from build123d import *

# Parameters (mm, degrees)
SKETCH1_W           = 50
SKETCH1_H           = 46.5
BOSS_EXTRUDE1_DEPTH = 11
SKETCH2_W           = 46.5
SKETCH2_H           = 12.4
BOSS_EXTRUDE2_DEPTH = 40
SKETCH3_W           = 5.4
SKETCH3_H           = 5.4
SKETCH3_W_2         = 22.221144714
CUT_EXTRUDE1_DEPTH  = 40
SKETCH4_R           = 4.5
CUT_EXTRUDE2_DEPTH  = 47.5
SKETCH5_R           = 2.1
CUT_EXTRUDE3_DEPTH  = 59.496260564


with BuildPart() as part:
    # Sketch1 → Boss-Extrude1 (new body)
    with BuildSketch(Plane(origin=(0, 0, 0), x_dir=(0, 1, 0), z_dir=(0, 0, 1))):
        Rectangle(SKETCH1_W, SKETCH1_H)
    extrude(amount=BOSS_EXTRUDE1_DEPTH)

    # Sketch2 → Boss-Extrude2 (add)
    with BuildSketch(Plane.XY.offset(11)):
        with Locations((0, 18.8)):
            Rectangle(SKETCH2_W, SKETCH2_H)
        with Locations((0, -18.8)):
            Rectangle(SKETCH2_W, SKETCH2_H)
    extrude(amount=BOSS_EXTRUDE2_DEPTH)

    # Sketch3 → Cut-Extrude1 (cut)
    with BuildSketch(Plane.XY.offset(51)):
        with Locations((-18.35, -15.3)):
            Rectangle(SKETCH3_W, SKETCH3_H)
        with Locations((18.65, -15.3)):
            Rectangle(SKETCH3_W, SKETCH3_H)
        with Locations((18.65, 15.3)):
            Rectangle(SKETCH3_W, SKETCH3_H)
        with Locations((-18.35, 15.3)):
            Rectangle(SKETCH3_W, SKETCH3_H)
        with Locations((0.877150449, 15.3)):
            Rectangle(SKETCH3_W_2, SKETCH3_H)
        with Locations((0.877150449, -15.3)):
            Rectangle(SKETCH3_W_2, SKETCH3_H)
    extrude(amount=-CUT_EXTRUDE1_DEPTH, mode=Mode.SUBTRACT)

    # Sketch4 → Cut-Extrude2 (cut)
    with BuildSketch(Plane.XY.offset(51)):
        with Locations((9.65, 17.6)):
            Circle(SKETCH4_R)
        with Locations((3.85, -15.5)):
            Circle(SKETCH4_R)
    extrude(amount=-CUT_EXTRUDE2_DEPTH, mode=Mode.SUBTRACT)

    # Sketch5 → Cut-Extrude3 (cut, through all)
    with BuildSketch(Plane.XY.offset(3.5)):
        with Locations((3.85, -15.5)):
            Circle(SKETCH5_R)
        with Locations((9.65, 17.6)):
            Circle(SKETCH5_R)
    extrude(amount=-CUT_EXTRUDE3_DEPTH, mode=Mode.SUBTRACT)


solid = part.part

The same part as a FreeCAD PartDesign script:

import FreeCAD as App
import Part
import Sketcher
from FreeCAD import Vector


def add_polygon(sketch, points):
    """Adds a closed chain of lines whose ends are joined by coincident constraints."""
    first, n = sketch.GeometryCount, len(points)
    for a, b in zip(points, points[1:] + points[:1]):
        sketch.addGeometry(Part.LineSegment(App.Vector(*a, 0), App.Vector(*b, 0)), False)
    for i in range(n):
        sketch.addConstraint(Sketcher.Constraint("Coincident", first + i, 2, first + (i + 1) % n, 1))

doc = App.newDocument("Part")
params = doc.addObject("Spreadsheet::Sheet", "Params")
for row, (alias, value) in enumerate([
    ("sketch1_height", "50 mm"),
    ("sketch1_width", "46.5 mm"),
    ("pad1_length", "11 mm"),
    ("sketch2_width", "46.5 mm"),
    ("sketch2_height", "12.4 mm"),
    ("pad2_length", "40 mm"),
    ("sketch3_width", "5.4 mm"),
    ("pocket1_length", "40 mm"),
    ("sketch4_diameter", "9 mm"),
    ("pocket2_length", "47.5 mm"),
    ("sketch5_diameter", "4.2 mm"),
], start=1):
    params.set(f"A{row}", alias)
    params.set(f"B{row}", "=" + value)
    params.setAlias(f"B{row}", alias)

body = doc.addObject("PartDesign::Body", "Body")

sketch1 = body.newObject("Sketcher::SketchObject", "Sketch")
sketch1.AttachmentSupport = (doc.getObject("XY_Plane"), [""])
sketch1.MapMode = "FlatFace"
add_polygon(sketch1, [(-23.25, -25), (23.25, -25), (23.25, 25), (-23.25, 25)])
sketch1.addConstraint([
    Sketcher.Constraint("Horizontal", 0),
    Sketcher.Constraint("Vertical", 1),
    Sketcher.Constraint("Horizontal", 2),
    Sketcher.Constraint("Vertical", 3),
    Sketcher.Constraint("Symmetric", 0, 2, 2, 2, -1, 1),
    Sketcher.Constraint("DistanceY", 1, 1, 1, 2, 50.0),
    Sketcher.Constraint("DistanceX", 0, 1, 0, 2, 46.5),
])
sketch1.setExpression("Constraints[9]", "Params.sketch1_height")
sketch1.setExpression("Constraints[10]", "Params.sketch1_width")
pad1 = body.newObject("PartDesign::Pad", "Pad")
pad1.Profile = sketch1
pad1.setExpression("Length", "Params.pad1_length")

sketch2 = body.newObject("Sketcher::SketchObject", "Sketch001")
sketch2.AttachmentSupport = (doc.getObject("XY_Plane"), [""])
sketch2.MapMode = "FlatFace"
sketch2.AttachmentOffset = App.Placement(Vector(0, 0, 11), App.Rotation())
add_polygon(sketch2, [(-23.25, 25), (-23.25, 12.6), (23.25, 12.6), (23.25, 25)])
add_polygon(sketch2, [(-23.25, -12.6), (-23.25, -25), (23.25, -25), (23.25, -12.6)])
sketch2.addConstraint([
    Sketcher.Constraint("Vertical", 0),
    Sketcher.Constraint("Horizontal", 1),
    Sketcher.Constraint("Vertical", 2),
    Sketcher.Constraint("Horizontal", 3),
    Sketcher.Constraint("Vertical", 4),
    Sketcher.Constraint("Horizontal", 5),
    Sketcher.Constraint("Vertical", 6),
    Sketcher.Constraint("Horizontal", 7),
    Sketcher.Constraint("Symmetric", 2, 2, 4, 2, -1, 1),
    Sketcher.Constraint("Symmetric", 0, 2, 6, 2, -1, 1),
    Sketcher.Constraint("Vertical", 3, 2, 4, 2),
    Sketcher.Constraint("DistanceX", 1, 1, 1, 2, 46.5),
    Sketcher.Constraint("DistanceY", 0, 2, 0, 1, 12.4),
    Sketcher.Constraint("DistanceY", -1, 1, 2, 2, 25.0),
])
sketch2.setExpression("Constraints[19]", "Params.sketch2_width")
sketch2.setExpression("Constraints[20]", "Params.sketch2_height")
pad2 = body.newObject("PartDesign::Pad", "Pad001")
pad2.Profile = sketch2
pad2.setExpression("Length", "Params.pad2_length")

sketch3 = body.newObject("Sketcher::SketchObject", "Sketch002")
sketch3.AttachmentSupport = (doc.getObject("XY_Plane"), [""])
sketch3.MapMode = "FlatFace"
sketch3.AttachmentOffset = App.Placement(Vector(0, 0, 51), App.Rotation())
add_polygon(sketch3, [(-21.05, -12.6), (-21.05, -18), (-15.65, -18), (-15.65, -12.6)])
add_polygon(sketch3, [(15.95, -12.6), (15.95, -18), (21.35, -18), (21.35, -12.6)])
add_polygon(sketch3, [(15.95, 18), (15.95, 12.6), (21.35, 12.6), (21.35, 18)])
add_polygon(sketch3, [(-21.05, 18), (-21.05, 12.6), (-15.65, 12.6), (-15.65, 18)])
add_polygon(sketch3, [(-10.233422, 18), (-10.233422, 12.6), (11.987723, 12.6), (11.987723, 18)])
add_polygon(sketch3, [(-10.233422, -12.6), (-10.233422, -18), (11.987723, -18), (11.987723, -12.6)])
sketch3.addConstraint([
    Sketcher.Constraint("Vertical", 0),
    Sketcher.Constraint("Horizontal", 1),
    Sketcher.Constraint("Vertical", 2),
    Sketcher.Constraint("Horizontal", 3),
    Sketcher.Constraint("Vertical", 4),
    Sketcher.Constraint("Horizontal", 5),
    Sketcher.Constraint("Vertical", 6),
    Sketcher.Constraint("Horizontal", 7),
    Sketcher.Constraint("Vertical", 8),
    Sketcher.Constraint("Horizontal", 9),
    Sketcher.Constraint("Vertical", 10),
    Sketcher.Constraint("Horizontal", 11),
    Sketcher.Constraint("Vertical", 12),
    Sketcher.Constraint("Horizontal", 13),
    Sketcher.Constraint("Vertical", 14),
    Sketcher.Constraint("Horizontal", 15),
    Sketcher.Constraint("Vertical", 16),
    Sketcher.Constraint("Horizontal", 17),
    Sketcher.Constraint("Vertical", 18),
    Sketcher.Constraint("Horizontal", 19),
    Sketcher.Constraint("Vertical", 20),
    Sketcher.Constraint("Horizontal", 21),
    Sketcher.Constraint("Vertical", 22),
    Sketcher.Constraint("Horizontal", 23),
    Sketcher.Constraint("Symmetric", 7, 2, 8, 2, -1),
    Sketcher.Constraint("Symmetric", 5, 2, 10, 2, -1),
    Sketcher.Constraint("Symmetric", 3, 2, 12, 2, -1),
    Sketcher.Constraint("Symmetric", 1, 2, 14, 2, -1),
    Sketcher.Constraint("Symmetric", 19, 2, 20, 2, -1),
    Sketcher.Constraint("Symmetric", 17, 2, 22, 2, -1),
    Sketcher.Constraint("Horizontal", 1, 2, 4, 2),
    Sketcher.Constraint("Horizontal", 3, 2, 6, 2),
    Sketcher.Constraint("Horizontal", 13, 2, 16, 2),
    Sketcher.Constraint("Horizontal", 15, 2, 18, 2),
    Sketcher.Constraint("Equal", 3, 5),
    Sketcher.Constraint("Equal", 15, 0),
    Sketcher.Constraint("DistanceX", 1, 1, 1, 2, 5.4),
    Sketcher.Constraint("DistanceY", 0, 2, -1, 1, 18.0),
    Sketcher.Constraint("DistanceX", 0, 2, 4, 2, 37.0),
    Sketcher.Constraint("DistanceX", 0, 2, -1, 1, 21.05),
    Sketcher.Constraint("DistanceX", 17, 1, 17, 2, 22.221145),
    Sketcher.Constraint("DistanceX", 16, 2, -1, 1, 10.233422),
])
sketch3.setExpression("Constraints[60]", "Params.sketch3_width")
pocket1 = body.newObject("PartDesign::Pocket", "Pocket")
pocket1.Profile = sketch3
pocket1.setExpression("Length", "Params.pocket1_length")

sketch4 = body.newObject("Sketcher::SketchObject", "Sketch003")
sketch4.AttachmentSupport = (doc.getObject("XY_Plane"), [""])
sketch4.MapMode = "FlatFace"
sketch4.AttachmentOffset = App.Placement(Vector(0, 0, 51), App.Rotation())
sketch4.addGeometry([
    Part.Circle(Vector(9.65, 17.6, 0), Vector(0, 0, 1), 4.5),
    Part.Circle(Vector(3.85, -15.5, 0), Vector(0, 0, 1), 4.5),
], False)
sketch4.addConstraint([
    Sketcher.Constraint("Equal", 0, 1),
    Sketcher.Constraint("Diameter", 0, 9.0),
    Sketcher.Constraint("DistanceY", -1, 1, 0, 3, 17.6),
    Sketcher.Constraint("DistanceY", 1, 3, -1, 1, 15.5),
    Sketcher.Constraint("DistanceX", 1, 3, 0, 3, 5.8),
    Sketcher.Constraint("DistanceX", -1, 1, 0, 3, 9.65),
])
sketch4.setExpression("Constraints[1]", "Params.sketch4_diameter")
pocket2 = body.newObject("PartDesign::Pocket", "Pocket001")
pocket2.Profile = sketch4
pocket2.setExpression("Length", "Params.pocket2_length")

sketch5 = body.newObject("Sketcher::SketchObject", "Sketch004")
sketch5.AttachmentSupport = (doc.getObject("XY_Plane"), [""])
sketch5.MapMode = "FlatFace"
sketch5.AttachmentOffset = App.Placement(Vector(0, 0, 3.5), App.Rotation())
sketch5.addGeometry([
    Part.Circle(Vector(3.85, -15.5, 0), Vector(0, 0, 1), 2.1),
    Part.Circle(Vector(9.65, 17.6, 0), Vector(0, 0, 1), 2.1),
], False)
sketch5.addConstraint([
    Sketcher.Constraint("Equal", 0, 1),
    Sketcher.Constraint("Diameter", 0, 4.2),
    Sketcher.Constraint("DistanceY", 0, 3, -1, 1, 15.5),
    Sketcher.Constraint("DistanceY", -1, 1, 1, 3, 17.6),
    Sketcher.Constraint("DistanceX", 0, 3, 1, 3, 5.8),
    Sketcher.Constraint("DistanceX", -1, 1, 0, 3, 3.85),
])
sketch5.setExpression("Constraints[1]", "Params.sketch5_diameter")
pocket3 = body.newObject("PartDesign::Pocket", "Pocket002")
pocket3.Profile = sketch5
pocket3.Type = "ThroughAll"

doc.recompute()
